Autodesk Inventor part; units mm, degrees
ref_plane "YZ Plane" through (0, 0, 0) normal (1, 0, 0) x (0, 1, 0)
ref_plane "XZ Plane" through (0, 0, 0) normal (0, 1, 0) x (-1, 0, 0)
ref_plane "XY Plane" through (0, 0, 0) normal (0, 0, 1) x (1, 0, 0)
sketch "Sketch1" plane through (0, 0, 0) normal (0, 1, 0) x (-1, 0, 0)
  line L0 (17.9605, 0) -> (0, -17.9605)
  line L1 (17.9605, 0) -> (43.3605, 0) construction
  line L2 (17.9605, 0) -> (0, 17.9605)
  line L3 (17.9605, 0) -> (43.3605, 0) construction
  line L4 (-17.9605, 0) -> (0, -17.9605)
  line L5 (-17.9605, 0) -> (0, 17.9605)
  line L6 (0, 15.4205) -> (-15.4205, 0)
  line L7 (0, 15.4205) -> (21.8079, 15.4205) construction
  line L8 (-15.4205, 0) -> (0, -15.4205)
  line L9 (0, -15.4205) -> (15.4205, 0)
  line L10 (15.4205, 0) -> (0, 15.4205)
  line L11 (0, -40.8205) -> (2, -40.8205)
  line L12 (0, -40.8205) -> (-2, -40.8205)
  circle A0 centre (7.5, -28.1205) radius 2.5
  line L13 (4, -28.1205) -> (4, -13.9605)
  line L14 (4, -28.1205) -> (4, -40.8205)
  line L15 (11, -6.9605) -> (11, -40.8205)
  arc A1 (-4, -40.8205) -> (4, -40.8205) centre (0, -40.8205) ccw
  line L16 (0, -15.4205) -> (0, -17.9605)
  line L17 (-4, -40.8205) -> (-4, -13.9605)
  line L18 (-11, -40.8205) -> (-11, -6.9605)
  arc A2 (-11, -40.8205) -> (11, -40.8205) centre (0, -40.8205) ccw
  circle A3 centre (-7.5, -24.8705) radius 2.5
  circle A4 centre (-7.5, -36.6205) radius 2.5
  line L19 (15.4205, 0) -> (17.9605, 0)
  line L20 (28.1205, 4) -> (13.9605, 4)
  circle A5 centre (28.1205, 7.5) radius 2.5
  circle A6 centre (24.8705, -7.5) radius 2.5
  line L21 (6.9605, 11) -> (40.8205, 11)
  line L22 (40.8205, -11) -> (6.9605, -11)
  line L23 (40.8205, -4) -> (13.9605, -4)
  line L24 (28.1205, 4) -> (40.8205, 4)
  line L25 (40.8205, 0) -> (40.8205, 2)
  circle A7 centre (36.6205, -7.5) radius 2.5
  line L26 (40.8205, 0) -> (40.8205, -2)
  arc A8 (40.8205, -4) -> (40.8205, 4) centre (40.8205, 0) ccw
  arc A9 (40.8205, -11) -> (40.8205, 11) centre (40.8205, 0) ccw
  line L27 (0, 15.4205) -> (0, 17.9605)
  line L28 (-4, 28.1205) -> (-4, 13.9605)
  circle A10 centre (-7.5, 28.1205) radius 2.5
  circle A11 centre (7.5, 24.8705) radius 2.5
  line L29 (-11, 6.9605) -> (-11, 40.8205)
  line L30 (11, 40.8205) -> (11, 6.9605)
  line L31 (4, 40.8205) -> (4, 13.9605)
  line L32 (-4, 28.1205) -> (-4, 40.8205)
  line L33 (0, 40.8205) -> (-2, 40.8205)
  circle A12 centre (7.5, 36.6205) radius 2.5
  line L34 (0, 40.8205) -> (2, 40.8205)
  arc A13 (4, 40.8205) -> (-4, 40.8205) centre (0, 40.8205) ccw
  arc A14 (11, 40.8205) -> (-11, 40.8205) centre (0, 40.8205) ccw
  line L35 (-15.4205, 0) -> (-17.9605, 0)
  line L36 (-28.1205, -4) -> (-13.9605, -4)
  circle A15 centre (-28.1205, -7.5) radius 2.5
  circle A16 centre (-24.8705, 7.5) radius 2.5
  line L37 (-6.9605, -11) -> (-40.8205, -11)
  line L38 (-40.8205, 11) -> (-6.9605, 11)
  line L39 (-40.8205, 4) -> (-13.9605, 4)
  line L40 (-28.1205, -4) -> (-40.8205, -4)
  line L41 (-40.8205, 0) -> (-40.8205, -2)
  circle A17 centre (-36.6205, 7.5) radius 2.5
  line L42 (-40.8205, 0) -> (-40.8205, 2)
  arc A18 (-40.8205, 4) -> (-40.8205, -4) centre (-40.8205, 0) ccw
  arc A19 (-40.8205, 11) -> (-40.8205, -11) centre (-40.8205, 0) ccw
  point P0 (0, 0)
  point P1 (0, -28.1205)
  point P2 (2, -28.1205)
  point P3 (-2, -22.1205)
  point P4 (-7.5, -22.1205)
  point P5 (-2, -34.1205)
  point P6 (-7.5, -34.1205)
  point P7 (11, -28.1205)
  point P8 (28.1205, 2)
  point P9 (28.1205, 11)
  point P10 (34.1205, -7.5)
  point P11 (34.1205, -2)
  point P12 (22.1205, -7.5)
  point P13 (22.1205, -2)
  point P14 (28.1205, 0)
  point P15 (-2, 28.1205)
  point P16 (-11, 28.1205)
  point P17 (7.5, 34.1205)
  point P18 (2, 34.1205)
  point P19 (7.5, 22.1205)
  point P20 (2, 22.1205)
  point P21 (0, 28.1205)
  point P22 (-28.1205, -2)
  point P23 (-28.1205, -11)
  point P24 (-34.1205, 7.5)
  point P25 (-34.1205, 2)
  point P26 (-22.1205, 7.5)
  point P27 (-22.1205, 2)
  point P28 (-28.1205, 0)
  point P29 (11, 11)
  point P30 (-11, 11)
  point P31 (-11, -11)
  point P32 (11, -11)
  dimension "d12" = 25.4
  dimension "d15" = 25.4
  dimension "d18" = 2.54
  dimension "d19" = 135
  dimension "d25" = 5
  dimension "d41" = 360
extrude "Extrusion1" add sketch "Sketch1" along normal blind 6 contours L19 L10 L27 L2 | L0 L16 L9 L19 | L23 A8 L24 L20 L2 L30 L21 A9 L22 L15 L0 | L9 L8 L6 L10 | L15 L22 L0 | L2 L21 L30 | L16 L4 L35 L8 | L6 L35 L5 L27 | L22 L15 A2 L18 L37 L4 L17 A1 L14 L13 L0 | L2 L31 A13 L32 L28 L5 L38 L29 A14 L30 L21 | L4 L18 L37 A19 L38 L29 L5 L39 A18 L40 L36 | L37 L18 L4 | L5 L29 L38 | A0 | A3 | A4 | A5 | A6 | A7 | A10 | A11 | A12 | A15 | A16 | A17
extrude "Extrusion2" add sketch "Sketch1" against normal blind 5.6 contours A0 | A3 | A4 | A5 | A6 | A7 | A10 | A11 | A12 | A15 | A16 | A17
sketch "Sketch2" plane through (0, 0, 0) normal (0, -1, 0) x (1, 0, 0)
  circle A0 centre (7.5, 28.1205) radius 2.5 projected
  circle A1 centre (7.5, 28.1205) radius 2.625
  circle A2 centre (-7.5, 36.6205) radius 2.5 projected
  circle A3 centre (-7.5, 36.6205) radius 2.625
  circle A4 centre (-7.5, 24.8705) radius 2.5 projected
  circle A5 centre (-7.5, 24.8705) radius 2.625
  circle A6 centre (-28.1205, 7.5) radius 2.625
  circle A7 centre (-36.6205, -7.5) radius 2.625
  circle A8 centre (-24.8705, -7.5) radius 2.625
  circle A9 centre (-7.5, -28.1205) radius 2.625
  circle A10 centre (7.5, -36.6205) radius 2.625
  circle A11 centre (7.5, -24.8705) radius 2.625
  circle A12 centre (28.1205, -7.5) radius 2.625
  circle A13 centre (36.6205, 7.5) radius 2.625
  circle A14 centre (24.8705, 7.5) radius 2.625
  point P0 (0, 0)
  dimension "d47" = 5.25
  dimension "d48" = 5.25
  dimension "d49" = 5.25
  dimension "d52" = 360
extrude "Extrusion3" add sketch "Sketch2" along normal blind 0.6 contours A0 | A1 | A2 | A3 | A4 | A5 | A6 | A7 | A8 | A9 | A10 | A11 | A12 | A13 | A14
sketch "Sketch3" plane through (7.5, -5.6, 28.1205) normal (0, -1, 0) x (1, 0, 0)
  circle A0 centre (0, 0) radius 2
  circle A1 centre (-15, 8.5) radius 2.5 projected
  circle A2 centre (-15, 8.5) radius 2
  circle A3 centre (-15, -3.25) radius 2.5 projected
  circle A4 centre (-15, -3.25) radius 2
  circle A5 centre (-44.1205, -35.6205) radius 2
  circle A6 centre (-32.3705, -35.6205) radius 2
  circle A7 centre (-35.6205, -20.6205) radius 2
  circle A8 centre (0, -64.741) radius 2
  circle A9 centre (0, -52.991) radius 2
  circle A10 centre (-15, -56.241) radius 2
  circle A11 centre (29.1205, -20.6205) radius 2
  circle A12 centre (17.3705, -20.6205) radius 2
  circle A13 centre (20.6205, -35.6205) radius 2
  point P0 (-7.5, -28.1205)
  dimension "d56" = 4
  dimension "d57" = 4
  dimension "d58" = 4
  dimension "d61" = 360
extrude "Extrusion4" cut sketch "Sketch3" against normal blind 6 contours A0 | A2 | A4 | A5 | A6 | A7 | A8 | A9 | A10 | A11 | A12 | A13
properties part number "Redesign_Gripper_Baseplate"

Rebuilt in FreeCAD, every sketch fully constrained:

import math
import FreeCAD as App
import Part
import Sketcher
Q = App.Units.Quantity

doc = App.newDocument("Part")
body = doc.addObject("PartDesign::Body", "Body")

sketch1 = body.newObject("Sketcher::SketchObject", "Sketch")
sketch1.AttachmentSupport = (doc.getObject("XZ_Plane"), [""])
sketch1.MapMode = "FlatFace"
sketch1.addGeometry([
    Part.LineSegment(App.Vector(11, 40.8, 0), App.Vector(11, 11, 0)),
    Part.LineSegment(App.Vector(11, 11, 0), App.Vector(40.8, 11, 0)),
    Part.ArcOfCircle(Part.Circle(App.Vector(40.8, 0, 0), App.Vector(0, 0, 1), 11), math.radians(-90), math.radians(90)),
    Part.LineSegment(App.Vector(40.8, -11, 0), App.Vector(11, -11, 0)),
    Part.LineSegment(App.Vector(11, -11, 0), App.Vector(11, -40.8, 0)),
    Part.ArcOfCircle(Part.Circle(App.Vector(0, -40.8, 0), App.Vector(0, 0, 1), 11), math.radians(180), math.radians(360)),
    Part.LineSegment(App.Vector(-11, -40.8, 0), App.Vector(-11, -11, 0)),
    Part.LineSegment(App.Vector(-11, -11, 0), App.Vector(-40.8, -11, 0)),
    Part.ArcOfCircle(Part.Circle(App.Vector(-40.8, 0, 0), App.Vector(0, 0, 1), 11), math.radians(90), math.radians(270)),
    Part.LineSegment(App.Vector(-40.8, 11, 0), App.Vector(-11, 11, 0)),
    Part.LineSegment(App.Vector(-11, 11, 0), App.Vector(-11, 40.8, 0)),
    Part.ArcOfCircle(Part.Circle(App.Vector(0, 40.8, 0), App.Vector(0, 0, 1), 11), math.radians(0), math.radians(180)),
    Part.LineSegment(App.Vector(-4, 14, 0), App.Vector(0, 18, 0)),
    Part.LineSegment(App.Vector(0, 18, 0), App.Vector(4, 14, 0)),
    Part.LineSegment(App.Vector(4, 14, 0), App.Vector(4, 40.8, 0)),
    Part.ArcOfCircle(Part.Circle(App.Vector(0, 40.8, 0), App.Vector(0, 0, 1), 4), math.radians(0), math.radians(180)),
    Part.LineSegment(App.Vector(-4, 40.8, 0), App.Vector(-4, 14, 0)),
    Part.LineSegment(App.Vector(-18, 0, 0), App.Vector(-14, 4, 0)),
    Part.LineSegment(App.Vector(-14, 4, 0), App.Vector(-40.8, 4, 0)),
    Part.ArcOfCircle(Part.Circle(App.Vector(-40.8, 0, 0), App.Vector(0, 0, 1), 4), math.radians(90), math.radians(270)),
    Part.LineSegment(App.Vector(-40.8, -4, 0), App.Vector(-14, -4, 0)),
    Part.LineSegment(App.Vector(-14, -4, 0), App.Vector(-18, 0, 0)),
    Part.LineSegment(App.Vector(0, -18, 0), App.Vector(-4, -14, 0)),
    Part.LineSegment(App.Vector(-4, -14, 0), App.Vector(-4, -40.8, 0)),
    Part.ArcOfCircle(Part.Circle(App.Vector(0, -40.8, 0), App.Vector(0, 0, 1), 4), math.radians(180), math.radians(360)),
    Part.LineSegment(App.Vector(4, -40.8, 0), App.Vector(4, -14, 0)),
    Part.LineSegment(App.Vector(4, -14, 0), App.Vector(0, -18, 0)),
    Part.LineSegment(App.Vector(14, 4, 0), App.Vector(18, 0, 0)),
    Part.LineSegment(App.Vector(18, 0, 0), App.Vector(14, -4, 0)),
    Part.LineSegment(App.Vector(14, -4, 0), App.Vector(40.8, -4, 0)),
    Part.ArcOfCircle(Part.Circle(App.Vector(40.8, 0, 0), App.Vector(0, 0, 1), 4), math.radians(-90), math.radians(90)),
    Part.LineSegment(App.Vector(40.8, 4, 0), App.Vector(14, 4, 0)),
], False)
sketch1.addConstraint([
    Sketcher.Constraint("Coincident", 0, 2, 1, 1),
    Sketcher.Constraint("Tangent", 1, 2, 2, 2),
    Sketcher.Constraint("Tangent", 2, 1, 3, 1),
    Sketcher.Constraint("Coincident", 3, 2, 4, 1),
    Sketcher.Constraint("Tangent", 4, 2, 5, 2),
    Sketcher.Constraint("Tangent", 5, 1, 6, 1),
    Sketcher.Constraint("Coincident", 6, 2, 7, 1),
    Sketcher.Constraint("Tangent", 7, 2, 8, 2),
    Sketcher.Constraint("Tangent", 8, 1, 9, 1),
    Sketcher.Constraint("Coincident", 9, 2, 10, 1),
    Sketcher.Constraint("Tangent", 10, 2, 11, 2),
    Sketcher.Constraint("Tangent", 11, 1, 0, 1),
    Sketcher.Constraint("Coincident", 12, 2, 13, 1),
    Sketcher.Constraint("Coincident", 13, 2, 14, 1),
    Sketcher.Constraint("Tangent", 14, 2, 15, 1),
    Sketcher.Constraint("Tangent", 15, 2, 16, 1),
    Sketcher.Constraint("Coincident", 16, 2, 12, 1),
    Sketcher.Constraint("Coincident", 17, 2, 18, 1),
    Sketcher.Constraint("Tangent", 18, 2, 19, 1),
    Sketcher.Constraint("Tangent", 19, 2, 20, 1),
    Sketcher.Constraint("Coincident", 20, 2, 21, 1),
    Sketcher.Constraint("Coincident", 21, 2, 17, 1),
    Sketcher.Constraint("Coincident", 22, 2, 23, 1),
    Sketcher.Constraint("Tangent", 23, 2, 24, 1),
    Sketcher.Constraint("Tangent", 24, 2, 25, 1),
    Sketcher.Constraint("Coincident", 25, 2, 26, 1),
    Sketcher.Constraint("Coincident", 26, 2, 22, 1),
    Sketcher.Constraint("Coincident", 27, 2, 28, 1),
    Sketcher.Constraint("Coincident", 28, 2, 29, 1),
    Sketcher.Constraint("Tangent", 29, 2, 30, 1),
    Sketcher.Constraint("Tangent", 30, 2, 31, 1),
    Sketcher.Constraint("Coincident", 31, 2, 27, 1),
    Sketcher.Constraint("Vertical", 0),
    Sketcher.Constraint("Horizontal", 1),
    Sketcher.Constraint("Horizontal", 3),
    Sketcher.Constraint("Vertical", 4),
    Sketcher.Constraint("Vertical", 6),
    Sketcher.Constraint("Horizontal", 7),
    Sketcher.Constraint("Horizontal", 9),
    Sketcher.Constraint("Vertical", 10),
    Sketcher.Constraint("Vertical", 14),
    Sketcher.Constraint("Vertical", 16),
    Sketcher.Constraint("Horizontal", 18),
    Sketcher.Constraint("Horizontal", 20),
    Sketcher.Constraint("Vertical", 23),
    Sketcher.Constraint("Vertical", 25),
    Sketcher.Constraint("Horizontal", 29),
    Sketcher.Constraint("Horizontal", 31),
    Sketcher.Constraint("Coincident", 15, 3, 11, 3),
    Sketcher.Constraint("Coincident", 19, 3, 8, 3),
    Sketcher.Constraint("Coincident", 24, 3, 5, 3),
    Sketcher.Constraint("Coincident", 30, 3, 2, 3),
    Sketcher.Constraint("Equal", 2, 5),
    Sketcher.Constraint("Equal", 5, 8),
    Sketcher.Constraint("Equal", 8, 11),
    Sketcher.Constraint("Equal", 15, 19),
    Sketcher.Constraint("Equal", 19, 24),
    Sketcher.Constraint("Equal", 24, 30),
    Sketcher.Constraint("Symmetric", 2, 3, 8, 3, -1, 1),
    Sketcher.Constraint("Symmetric", 5, 3, 11, 3, -1, 1),
    Sketcher.Constraint("Symmetric", 12, 2, 26, 2, -1, 1),
    Sketcher.Constraint("Symmetric", 21, 2, 27, 2, -1, 1),
    Sketcher.Constraint("Symmetric", 3, 2, 6, 2, -2),
    Sketcher.Constraint("PointOnObject", 12, 2, -2),
    Sketcher.Constraint("PointOnObject", 21, 2, -1),
    Sketcher.Constraint("Perpendicular", 12, 13),
    Sketcher.Constraint("Perpendicular", 13, 17),
    Sketcher.Constraint("Perpendicular", 17, 21),
    Sketcher.Constraint("Parallel", 21, 22),
    Sketcher.Constraint("Perpendicular", 22, 26),
    Sketcher.Constraint("Perpendicular", 26, 27),
    Sketcher.Constraint("Perpendicular", 27, 28),
    Sketcher.Constraint("Horizontal", 13, 2, 16, 2),
    Sketcher.Constraint("Equal", 9, 0),
    Sketcher.Constraint("Equal", 31, 14),
    Sketcher.Constraint("Radius", 2, Q("11 mm")),
    Sketcher.Constraint("Radius", 15, Q("4 mm")),
    Sketcher.Constraint("DistanceX", 18, 2, 18, 1, Q("26.86 mm")),
    Sketcher.Constraint("DistanceX", 1, 1, 1, 2, Q("29.8205 mm")),
])
pad1 = body.newObject("PartDesign::Pad", "Pad")
pad1.Profile = sketch1
pad1.Length = 6
pad1.Reversed = True

sketch2 = body.newObject("Sketcher::SketchObject", "Sketch001")
sketch2.AttachmentSupport = (doc.getObject("XZ_Plane"), [""])
sketch2.MapMode = "FlatFace"
sketch2.addGeometry([
    Part.Circle(App.Vector(-7.5, -28.1, 0), App.Vector(0, 0, 1), 2.5),
    Part.Circle(App.Vector(7.5, -24.9, 0), App.Vector(0, 0, 1), 2.5),
    Part.Circle(App.Vector(7.5, -36.6, 0), App.Vector(0, 0, 1), 2.5),
    Part.Circle(App.Vector(-28.1, 7.5, 0), App.Vector(0, 0, 1), 2.5),
    Part.Circle(App.Vector(-24.9, -7.5, 0), App.Vector(0, 0, 1), 2.5),
    Part.Circle(App.Vector(-36.6, -7.5, 0), App.Vector(0, 0, 1), 2.5),
    Part.Circle(App.Vector(7.5, 28.1, 0), App.Vector(0, 0, 1), 2.5),
    Part.Circle(App.Vector(-7.5, 24.9, 0), App.Vector(0, 0, 1), 2.5),
    Part.Circle(App.Vector(-7.5, 36.6, 0), App.Vector(0, 0, 1), 2.5),
    Part.Circle(App.Vector(28.1, -7.5, 0), App.Vector(0, 0, 1), 2.5),
    Part.Circle(App.Vector(24.9, 7.5, 0), App.Vector(0, 0, 1), 2.5),
    Part.Circle(App.Vector(36.6, 7.5, 0), App.Vector(0, 0, 1), 2.5),
], False)
sketch2.addConstraint([
    Sketcher.Constraint("Equal", 0, 1),
    Sketcher.Constraint("Equal", 1, 2),
    Sketcher.Constraint("Equal", 2, 3),
    Sketcher.Constraint("Equal", 3, 4),
    Sketcher.Constraint("Equal", 4, 5),
    Sketcher.Constraint("Equal", 5, 6),
    Sketcher.Constraint("Equal", 6, 7),
    Sketcher.Constraint("Equal", 7, 8),
    Sketcher.Constraint("Equal", 8, 9),
    Sketcher.Constraint("Equal", 9, 10),
    Sketcher.Constraint("Equal", 10, 11),
    Sketcher.Constraint("Symmetric", 0, 3, 6, 3, -1, 1),
    Sketcher.Constraint("Symmetric", 1, 3, 7, 3, -1, 1),
    Sketcher.Constraint("Symmetric", 2, 3, 8, 3, -1, 1),
    Sketcher.Constraint("Symmetric", 3, 3, 9, 3, -1, 1),
    Sketcher.Constraint("Symmetric", 4, 3, 10, 3, -1, 1),
    Sketcher.Constraint("Symmetric", 5, 3, 11, 3, -1, 1),
    Sketcher.Constraint("Horizontal", 4, 3, 5, 3),
    Sketcher.Constraint("Horizontal", 5, 3, 9, 3),
    Sketcher.Constraint("Vertical", 1, 3, 2, 3),
    Sketcher.Constraint("Vertical", 2, 3, 6, 3),
    Sketcher.Constraint("Diameter", 0, Q("5 mm")),
    Sketcher.Constraint("DistanceX", 0, 3, 1, 3, Q("15 mm")),
    Sketcher.Constraint("DistanceY", 4, 3, 3, 3, Q("15 mm")),
    Sketcher.Constraint("DistanceY", 2, 3, 0, 3, Q("8.5 mm")),
    Sketcher.Constraint("DistanceX", 5, 3, 3, 3, Q("8.5 mm")),
    Sketcher.Constraint("DistanceY", 0, 3, 1, 3, Q("3.25 mm")),
    Sketcher.Constraint("DistanceX", 3, 3, 4, 3, Q("3.25 mm")),
    Sketcher.Constraint("DistanceY", 1, 3, 6, 3, Q("52.991 mm")),
    Sketcher.Constraint("DistanceX", 3, 3, -1, 1, Q("28.1205 mm")),
])
pad2 = body.newObject("PartDesign::Pad", "Pad001")
pad2.Profile = sketch2
pad2.Length = 5.6

sketch3 = body.newObject("Sketcher::SketchObject", "Sketch002")
sketch3.AttachmentSupport = (doc.getObject("XZ_Plane"), [""])
sketch3.MapMode = "FlatFace"
sketch3.addGeometry([
    Part.Circle(App.Vector(7.5, 28.1, 0), App.Vector(0, 0, 1), 2.6),
    Part.Circle(App.Vector(-7.5, 36.6, 0), App.Vector(0, 0, 1), 2.6),
    Part.Circle(App.Vector(-7.5, 24.9, 0), App.Vector(0, 0, 1), 2.6),
    Part.Circle(App.Vector(-28.1, 7.5, 0), App.Vector(0, 0, 1), 2.6),
    Part.Circle(App.Vector(-36.6, -7.5, 0), App.Vector(0, 0, 1), 2.6),
    Part.Circle(App.Vector(-24.9, -7.5, 0), App.Vector(0, 0, 1), 2.6),
    Part.Circle(App.Vector(-7.5, -28.1, 0), App.Vector(0, 0, 1), 2.6),
    Part.Circle(App.Vector(7.5, -36.6, 0), App.Vector(0, 0, 1), 2.6),
    Part.Circle(App.Vector(7.5, -24.9, 0), App.Vector(0, 0, 1), 2.6),
    Part.Circle(App.Vector(28.1, -7.5, 0), App.Vector(0, 0, 1), 2.6),
    Part.Circle(App.Vector(36.6, 7.5, 0), App.Vector(0, 0, 1), 2.6),
    Part.Circle(App.Vector(24.9, 7.5, 0), App.Vector(0, 0, 1), 2.6),
], False)
sketch3.addConstraint([
    Sketcher.Constraint("Equal", 0, 1),
    Sketcher.Constraint("Equal", 1, 2),
    Sketcher.Constraint("Equal", 2, 3),
    Sketcher.Constraint("Equal", 3, 4),
    Sketcher.Constraint("Equal", 4, 5),
    Sketcher.Constraint("Equal", 5, 6),
    Sketcher.Constraint("Equal", 6, 7),
    Sketcher.Constraint("Equal", 7, 8),
    Sketcher.Constraint("Equal", 8, 9),
    Sketcher.Constraint("Equal", 9, 10),
    Sketcher.Constraint("Equal", 10, 11),
    Sketcher.Constraint("Symmetric", 0, 3, 6, 3, -1, 1),
    Sketcher.Constraint("Symmetric", 1, 3, 7, 3, -1, 1),
    Sketcher.Constraint("Symmetric", 2, 3, 8, 3, -1, 1),
    Sketcher.Constraint("Symmetric", 3, 3, 9, 3, -1, 1),
    Sketcher.Constraint("Symmetric", 4, 3, 10, 3, -1, 1),
    Sketcher.Constraint("Symmetric", 5, 3, 11, 3, -1, 1),
    Sketcher.Constraint("Horizontal", 4, 3, 5, 3),
    Sketcher.Constraint("Horizontal", 5, 3, 9, 3),
    Sketcher.Constraint("Vertical", 1, 3, 2, 3),
    Sketcher.Constraint("Vertical", 2, 3, 6, 3),
    Sketcher.Constraint("Diameter", 0, Q("5.25 mm")),
    Sketcher.Constraint("DistanceX", 1, 3, 0, 3, Q("15 mm")),
    Sketcher.Constraint("DistanceY", 4, 3, 3, 3, Q("15 mm")),
    Sketcher.Constraint("DistanceY", 0, 3, 1, 3, Q("8.5 mm")),
    Sketcher.Constraint("DistanceX", 4, 3, 3, 3, Q("8.5 mm")),
    Sketcher.Constraint("DistanceY", 2, 3, 1, 3, Q("11.75 mm")),
    Sketcher.Constraint("DistanceX", 4, 3, 5, 3, Q("11.75 mm")),
    Sketcher.Constraint("DistanceY", 6, 3, 2, 3, Q("52.991 mm")),
    Sketcher.Constraint("DistanceX", 3, 3, -1, 1, Q("28.1205 mm")),
])
pad3 = body.newObject("PartDesign::Pad", "Pad002")
pad3.Profile = sketch3
pad3.Length = 0.6

sketch4 = body.newObject("Sketcher::SketchObject", "Sketch003")
sketch4.AttachmentSupport = (doc.getObject("XZ_Plane"), [""])
sketch4.MapMode = "FlatFace"
sketch4.AttachmentOffset = App.Placement(App.Vector(0, 0, 5.6), App.Rotation())
sketch4.addGeometry([
    Part.Circle(App.Vector(7.5, 28.1, 0), App.Vector(0, 0, 1), 2),
    Part.Circle(App.Vector(-7.5, 36.6, 0), App.Vector(0, 0, 1), 2),
    Part.Circle(App.Vector(-7.5, 24.9, 0), App.Vector(0, 0, 1), 2),
    Part.Circle(App.Vector(-36.6, -7.5, 0), App.Vector(0, 0, 1), 2),
    Part.Circle(App.Vector(-24.9, -7.5, 0), App.Vector(0, 0, 1), 2),
    Part.Circle(App.Vector(-28.1, 7.5, 0), App.Vector(0, 0, 1), 2),
    Part.Circle(App.Vector(7.5, -36.6, 0), App.Vector(0, 0, 1), 2),
    Part.Circle(App.Vector(7.5, -24.9, 0), App.Vector(0, 0, 1), 2),
    Part.Circle(App.Vector(-7.5, -28.1, 0), App.Vector(0, 0, 1), 2),
    Part.Circle(App.Vector(36.6, 7.5, 0), App.Vector(0, 0, 1), 2),
    Part.Circle(App.Vector(24.9, 7.5, 0), App.Vector(0, 0, 1), 2),
    Part.Circle(App.Vector(28.1, -7.5, 0), App.Vector(0, 0, 1), 2),
], False)
sketch4.addConstraint([
    Sketcher.Constraint("Equal", 0, 1),
    Sketcher.Constraint("Equal", 1, 2),
    Sketcher.Constraint("Equal", 2, 3),
    Sketcher.Constraint("Equal", 3, 4),
    Sketcher.Constraint("Equal", 4, 5),
    Sketcher.Constraint("Equal", 5, 6),
    Sketcher.Constraint("Equal", 6, 7),
    Sketcher.Constraint("Equal", 7, 8),
    Sketcher.Constraint("Equal", 8, 9),
    Sketcher.Constraint("Equal", 9, 10),
    Sketcher.Constraint("Equal", 10, 11),
    Sketcher.Constraint("Symmetric", 1, 3, 6, 3, -1, 1),
    Sketcher.Constraint("Symmetric", 2, 3, 7, 3, -1, 1),
    Sketcher.Constraint("Symmetric", 0, 3, 8, 3, -1, 1),
    Sketcher.Constraint("Symmetric", 3, 3, 9, 3, -1, 1),
    Sketcher.Constraint("Symmetric", 4, 3, 10, 3, -1, 1),
    Sketcher.Constraint("Symmetric", 5, 3, 11, 3, -1, 1),
    Sketcher.Constraint("Horizontal", 3, 3, 4, 3),
    Sketcher.Constraint("Horizontal", 5, 3, 9, 3),
    Sketcher.Constraint("Vertical", 1, 3, 2, 3),
    Sketcher.Constraint("Vertical", 0, 3, 6, 3),
    Sketcher.Constraint("Diameter", 0, Q("4 mm")),
    Sketcher.Constraint("DistanceX", 1, 3, 0, 3, Q("15 mm")),
    Sketcher.Constraint("DistanceY", 4, 3, 5, 3, Q("15 mm")),
    Sketcher.Constraint("DistanceY", 0, 3, 1, 3, Q("8.5 mm")),
    Sketcher.Constraint("DistanceX", 3, 3, 5, 3, Q("8.5 mm")),
    Sketcher.Constraint("DistanceY", 2, 3, 1, 3, Q("11.75 mm")),
    Sketcher.Constraint("DistanceX", 3, 3, 4, 3, Q("11.75 mm")),
    Sketcher.Constraint("DistanceY", 6, 3, 2, 3, Q("61.491 mm")),
    Sketcher.Constraint("DistanceX", 3, 3, -1, 1, Q("36.6205 mm")),
])
pocket1 = body.newObject("PartDesign::Pocket", "Pocket")
pocket1.Profile = sketch4
pocket1.Length = 6

doc.recompute()
